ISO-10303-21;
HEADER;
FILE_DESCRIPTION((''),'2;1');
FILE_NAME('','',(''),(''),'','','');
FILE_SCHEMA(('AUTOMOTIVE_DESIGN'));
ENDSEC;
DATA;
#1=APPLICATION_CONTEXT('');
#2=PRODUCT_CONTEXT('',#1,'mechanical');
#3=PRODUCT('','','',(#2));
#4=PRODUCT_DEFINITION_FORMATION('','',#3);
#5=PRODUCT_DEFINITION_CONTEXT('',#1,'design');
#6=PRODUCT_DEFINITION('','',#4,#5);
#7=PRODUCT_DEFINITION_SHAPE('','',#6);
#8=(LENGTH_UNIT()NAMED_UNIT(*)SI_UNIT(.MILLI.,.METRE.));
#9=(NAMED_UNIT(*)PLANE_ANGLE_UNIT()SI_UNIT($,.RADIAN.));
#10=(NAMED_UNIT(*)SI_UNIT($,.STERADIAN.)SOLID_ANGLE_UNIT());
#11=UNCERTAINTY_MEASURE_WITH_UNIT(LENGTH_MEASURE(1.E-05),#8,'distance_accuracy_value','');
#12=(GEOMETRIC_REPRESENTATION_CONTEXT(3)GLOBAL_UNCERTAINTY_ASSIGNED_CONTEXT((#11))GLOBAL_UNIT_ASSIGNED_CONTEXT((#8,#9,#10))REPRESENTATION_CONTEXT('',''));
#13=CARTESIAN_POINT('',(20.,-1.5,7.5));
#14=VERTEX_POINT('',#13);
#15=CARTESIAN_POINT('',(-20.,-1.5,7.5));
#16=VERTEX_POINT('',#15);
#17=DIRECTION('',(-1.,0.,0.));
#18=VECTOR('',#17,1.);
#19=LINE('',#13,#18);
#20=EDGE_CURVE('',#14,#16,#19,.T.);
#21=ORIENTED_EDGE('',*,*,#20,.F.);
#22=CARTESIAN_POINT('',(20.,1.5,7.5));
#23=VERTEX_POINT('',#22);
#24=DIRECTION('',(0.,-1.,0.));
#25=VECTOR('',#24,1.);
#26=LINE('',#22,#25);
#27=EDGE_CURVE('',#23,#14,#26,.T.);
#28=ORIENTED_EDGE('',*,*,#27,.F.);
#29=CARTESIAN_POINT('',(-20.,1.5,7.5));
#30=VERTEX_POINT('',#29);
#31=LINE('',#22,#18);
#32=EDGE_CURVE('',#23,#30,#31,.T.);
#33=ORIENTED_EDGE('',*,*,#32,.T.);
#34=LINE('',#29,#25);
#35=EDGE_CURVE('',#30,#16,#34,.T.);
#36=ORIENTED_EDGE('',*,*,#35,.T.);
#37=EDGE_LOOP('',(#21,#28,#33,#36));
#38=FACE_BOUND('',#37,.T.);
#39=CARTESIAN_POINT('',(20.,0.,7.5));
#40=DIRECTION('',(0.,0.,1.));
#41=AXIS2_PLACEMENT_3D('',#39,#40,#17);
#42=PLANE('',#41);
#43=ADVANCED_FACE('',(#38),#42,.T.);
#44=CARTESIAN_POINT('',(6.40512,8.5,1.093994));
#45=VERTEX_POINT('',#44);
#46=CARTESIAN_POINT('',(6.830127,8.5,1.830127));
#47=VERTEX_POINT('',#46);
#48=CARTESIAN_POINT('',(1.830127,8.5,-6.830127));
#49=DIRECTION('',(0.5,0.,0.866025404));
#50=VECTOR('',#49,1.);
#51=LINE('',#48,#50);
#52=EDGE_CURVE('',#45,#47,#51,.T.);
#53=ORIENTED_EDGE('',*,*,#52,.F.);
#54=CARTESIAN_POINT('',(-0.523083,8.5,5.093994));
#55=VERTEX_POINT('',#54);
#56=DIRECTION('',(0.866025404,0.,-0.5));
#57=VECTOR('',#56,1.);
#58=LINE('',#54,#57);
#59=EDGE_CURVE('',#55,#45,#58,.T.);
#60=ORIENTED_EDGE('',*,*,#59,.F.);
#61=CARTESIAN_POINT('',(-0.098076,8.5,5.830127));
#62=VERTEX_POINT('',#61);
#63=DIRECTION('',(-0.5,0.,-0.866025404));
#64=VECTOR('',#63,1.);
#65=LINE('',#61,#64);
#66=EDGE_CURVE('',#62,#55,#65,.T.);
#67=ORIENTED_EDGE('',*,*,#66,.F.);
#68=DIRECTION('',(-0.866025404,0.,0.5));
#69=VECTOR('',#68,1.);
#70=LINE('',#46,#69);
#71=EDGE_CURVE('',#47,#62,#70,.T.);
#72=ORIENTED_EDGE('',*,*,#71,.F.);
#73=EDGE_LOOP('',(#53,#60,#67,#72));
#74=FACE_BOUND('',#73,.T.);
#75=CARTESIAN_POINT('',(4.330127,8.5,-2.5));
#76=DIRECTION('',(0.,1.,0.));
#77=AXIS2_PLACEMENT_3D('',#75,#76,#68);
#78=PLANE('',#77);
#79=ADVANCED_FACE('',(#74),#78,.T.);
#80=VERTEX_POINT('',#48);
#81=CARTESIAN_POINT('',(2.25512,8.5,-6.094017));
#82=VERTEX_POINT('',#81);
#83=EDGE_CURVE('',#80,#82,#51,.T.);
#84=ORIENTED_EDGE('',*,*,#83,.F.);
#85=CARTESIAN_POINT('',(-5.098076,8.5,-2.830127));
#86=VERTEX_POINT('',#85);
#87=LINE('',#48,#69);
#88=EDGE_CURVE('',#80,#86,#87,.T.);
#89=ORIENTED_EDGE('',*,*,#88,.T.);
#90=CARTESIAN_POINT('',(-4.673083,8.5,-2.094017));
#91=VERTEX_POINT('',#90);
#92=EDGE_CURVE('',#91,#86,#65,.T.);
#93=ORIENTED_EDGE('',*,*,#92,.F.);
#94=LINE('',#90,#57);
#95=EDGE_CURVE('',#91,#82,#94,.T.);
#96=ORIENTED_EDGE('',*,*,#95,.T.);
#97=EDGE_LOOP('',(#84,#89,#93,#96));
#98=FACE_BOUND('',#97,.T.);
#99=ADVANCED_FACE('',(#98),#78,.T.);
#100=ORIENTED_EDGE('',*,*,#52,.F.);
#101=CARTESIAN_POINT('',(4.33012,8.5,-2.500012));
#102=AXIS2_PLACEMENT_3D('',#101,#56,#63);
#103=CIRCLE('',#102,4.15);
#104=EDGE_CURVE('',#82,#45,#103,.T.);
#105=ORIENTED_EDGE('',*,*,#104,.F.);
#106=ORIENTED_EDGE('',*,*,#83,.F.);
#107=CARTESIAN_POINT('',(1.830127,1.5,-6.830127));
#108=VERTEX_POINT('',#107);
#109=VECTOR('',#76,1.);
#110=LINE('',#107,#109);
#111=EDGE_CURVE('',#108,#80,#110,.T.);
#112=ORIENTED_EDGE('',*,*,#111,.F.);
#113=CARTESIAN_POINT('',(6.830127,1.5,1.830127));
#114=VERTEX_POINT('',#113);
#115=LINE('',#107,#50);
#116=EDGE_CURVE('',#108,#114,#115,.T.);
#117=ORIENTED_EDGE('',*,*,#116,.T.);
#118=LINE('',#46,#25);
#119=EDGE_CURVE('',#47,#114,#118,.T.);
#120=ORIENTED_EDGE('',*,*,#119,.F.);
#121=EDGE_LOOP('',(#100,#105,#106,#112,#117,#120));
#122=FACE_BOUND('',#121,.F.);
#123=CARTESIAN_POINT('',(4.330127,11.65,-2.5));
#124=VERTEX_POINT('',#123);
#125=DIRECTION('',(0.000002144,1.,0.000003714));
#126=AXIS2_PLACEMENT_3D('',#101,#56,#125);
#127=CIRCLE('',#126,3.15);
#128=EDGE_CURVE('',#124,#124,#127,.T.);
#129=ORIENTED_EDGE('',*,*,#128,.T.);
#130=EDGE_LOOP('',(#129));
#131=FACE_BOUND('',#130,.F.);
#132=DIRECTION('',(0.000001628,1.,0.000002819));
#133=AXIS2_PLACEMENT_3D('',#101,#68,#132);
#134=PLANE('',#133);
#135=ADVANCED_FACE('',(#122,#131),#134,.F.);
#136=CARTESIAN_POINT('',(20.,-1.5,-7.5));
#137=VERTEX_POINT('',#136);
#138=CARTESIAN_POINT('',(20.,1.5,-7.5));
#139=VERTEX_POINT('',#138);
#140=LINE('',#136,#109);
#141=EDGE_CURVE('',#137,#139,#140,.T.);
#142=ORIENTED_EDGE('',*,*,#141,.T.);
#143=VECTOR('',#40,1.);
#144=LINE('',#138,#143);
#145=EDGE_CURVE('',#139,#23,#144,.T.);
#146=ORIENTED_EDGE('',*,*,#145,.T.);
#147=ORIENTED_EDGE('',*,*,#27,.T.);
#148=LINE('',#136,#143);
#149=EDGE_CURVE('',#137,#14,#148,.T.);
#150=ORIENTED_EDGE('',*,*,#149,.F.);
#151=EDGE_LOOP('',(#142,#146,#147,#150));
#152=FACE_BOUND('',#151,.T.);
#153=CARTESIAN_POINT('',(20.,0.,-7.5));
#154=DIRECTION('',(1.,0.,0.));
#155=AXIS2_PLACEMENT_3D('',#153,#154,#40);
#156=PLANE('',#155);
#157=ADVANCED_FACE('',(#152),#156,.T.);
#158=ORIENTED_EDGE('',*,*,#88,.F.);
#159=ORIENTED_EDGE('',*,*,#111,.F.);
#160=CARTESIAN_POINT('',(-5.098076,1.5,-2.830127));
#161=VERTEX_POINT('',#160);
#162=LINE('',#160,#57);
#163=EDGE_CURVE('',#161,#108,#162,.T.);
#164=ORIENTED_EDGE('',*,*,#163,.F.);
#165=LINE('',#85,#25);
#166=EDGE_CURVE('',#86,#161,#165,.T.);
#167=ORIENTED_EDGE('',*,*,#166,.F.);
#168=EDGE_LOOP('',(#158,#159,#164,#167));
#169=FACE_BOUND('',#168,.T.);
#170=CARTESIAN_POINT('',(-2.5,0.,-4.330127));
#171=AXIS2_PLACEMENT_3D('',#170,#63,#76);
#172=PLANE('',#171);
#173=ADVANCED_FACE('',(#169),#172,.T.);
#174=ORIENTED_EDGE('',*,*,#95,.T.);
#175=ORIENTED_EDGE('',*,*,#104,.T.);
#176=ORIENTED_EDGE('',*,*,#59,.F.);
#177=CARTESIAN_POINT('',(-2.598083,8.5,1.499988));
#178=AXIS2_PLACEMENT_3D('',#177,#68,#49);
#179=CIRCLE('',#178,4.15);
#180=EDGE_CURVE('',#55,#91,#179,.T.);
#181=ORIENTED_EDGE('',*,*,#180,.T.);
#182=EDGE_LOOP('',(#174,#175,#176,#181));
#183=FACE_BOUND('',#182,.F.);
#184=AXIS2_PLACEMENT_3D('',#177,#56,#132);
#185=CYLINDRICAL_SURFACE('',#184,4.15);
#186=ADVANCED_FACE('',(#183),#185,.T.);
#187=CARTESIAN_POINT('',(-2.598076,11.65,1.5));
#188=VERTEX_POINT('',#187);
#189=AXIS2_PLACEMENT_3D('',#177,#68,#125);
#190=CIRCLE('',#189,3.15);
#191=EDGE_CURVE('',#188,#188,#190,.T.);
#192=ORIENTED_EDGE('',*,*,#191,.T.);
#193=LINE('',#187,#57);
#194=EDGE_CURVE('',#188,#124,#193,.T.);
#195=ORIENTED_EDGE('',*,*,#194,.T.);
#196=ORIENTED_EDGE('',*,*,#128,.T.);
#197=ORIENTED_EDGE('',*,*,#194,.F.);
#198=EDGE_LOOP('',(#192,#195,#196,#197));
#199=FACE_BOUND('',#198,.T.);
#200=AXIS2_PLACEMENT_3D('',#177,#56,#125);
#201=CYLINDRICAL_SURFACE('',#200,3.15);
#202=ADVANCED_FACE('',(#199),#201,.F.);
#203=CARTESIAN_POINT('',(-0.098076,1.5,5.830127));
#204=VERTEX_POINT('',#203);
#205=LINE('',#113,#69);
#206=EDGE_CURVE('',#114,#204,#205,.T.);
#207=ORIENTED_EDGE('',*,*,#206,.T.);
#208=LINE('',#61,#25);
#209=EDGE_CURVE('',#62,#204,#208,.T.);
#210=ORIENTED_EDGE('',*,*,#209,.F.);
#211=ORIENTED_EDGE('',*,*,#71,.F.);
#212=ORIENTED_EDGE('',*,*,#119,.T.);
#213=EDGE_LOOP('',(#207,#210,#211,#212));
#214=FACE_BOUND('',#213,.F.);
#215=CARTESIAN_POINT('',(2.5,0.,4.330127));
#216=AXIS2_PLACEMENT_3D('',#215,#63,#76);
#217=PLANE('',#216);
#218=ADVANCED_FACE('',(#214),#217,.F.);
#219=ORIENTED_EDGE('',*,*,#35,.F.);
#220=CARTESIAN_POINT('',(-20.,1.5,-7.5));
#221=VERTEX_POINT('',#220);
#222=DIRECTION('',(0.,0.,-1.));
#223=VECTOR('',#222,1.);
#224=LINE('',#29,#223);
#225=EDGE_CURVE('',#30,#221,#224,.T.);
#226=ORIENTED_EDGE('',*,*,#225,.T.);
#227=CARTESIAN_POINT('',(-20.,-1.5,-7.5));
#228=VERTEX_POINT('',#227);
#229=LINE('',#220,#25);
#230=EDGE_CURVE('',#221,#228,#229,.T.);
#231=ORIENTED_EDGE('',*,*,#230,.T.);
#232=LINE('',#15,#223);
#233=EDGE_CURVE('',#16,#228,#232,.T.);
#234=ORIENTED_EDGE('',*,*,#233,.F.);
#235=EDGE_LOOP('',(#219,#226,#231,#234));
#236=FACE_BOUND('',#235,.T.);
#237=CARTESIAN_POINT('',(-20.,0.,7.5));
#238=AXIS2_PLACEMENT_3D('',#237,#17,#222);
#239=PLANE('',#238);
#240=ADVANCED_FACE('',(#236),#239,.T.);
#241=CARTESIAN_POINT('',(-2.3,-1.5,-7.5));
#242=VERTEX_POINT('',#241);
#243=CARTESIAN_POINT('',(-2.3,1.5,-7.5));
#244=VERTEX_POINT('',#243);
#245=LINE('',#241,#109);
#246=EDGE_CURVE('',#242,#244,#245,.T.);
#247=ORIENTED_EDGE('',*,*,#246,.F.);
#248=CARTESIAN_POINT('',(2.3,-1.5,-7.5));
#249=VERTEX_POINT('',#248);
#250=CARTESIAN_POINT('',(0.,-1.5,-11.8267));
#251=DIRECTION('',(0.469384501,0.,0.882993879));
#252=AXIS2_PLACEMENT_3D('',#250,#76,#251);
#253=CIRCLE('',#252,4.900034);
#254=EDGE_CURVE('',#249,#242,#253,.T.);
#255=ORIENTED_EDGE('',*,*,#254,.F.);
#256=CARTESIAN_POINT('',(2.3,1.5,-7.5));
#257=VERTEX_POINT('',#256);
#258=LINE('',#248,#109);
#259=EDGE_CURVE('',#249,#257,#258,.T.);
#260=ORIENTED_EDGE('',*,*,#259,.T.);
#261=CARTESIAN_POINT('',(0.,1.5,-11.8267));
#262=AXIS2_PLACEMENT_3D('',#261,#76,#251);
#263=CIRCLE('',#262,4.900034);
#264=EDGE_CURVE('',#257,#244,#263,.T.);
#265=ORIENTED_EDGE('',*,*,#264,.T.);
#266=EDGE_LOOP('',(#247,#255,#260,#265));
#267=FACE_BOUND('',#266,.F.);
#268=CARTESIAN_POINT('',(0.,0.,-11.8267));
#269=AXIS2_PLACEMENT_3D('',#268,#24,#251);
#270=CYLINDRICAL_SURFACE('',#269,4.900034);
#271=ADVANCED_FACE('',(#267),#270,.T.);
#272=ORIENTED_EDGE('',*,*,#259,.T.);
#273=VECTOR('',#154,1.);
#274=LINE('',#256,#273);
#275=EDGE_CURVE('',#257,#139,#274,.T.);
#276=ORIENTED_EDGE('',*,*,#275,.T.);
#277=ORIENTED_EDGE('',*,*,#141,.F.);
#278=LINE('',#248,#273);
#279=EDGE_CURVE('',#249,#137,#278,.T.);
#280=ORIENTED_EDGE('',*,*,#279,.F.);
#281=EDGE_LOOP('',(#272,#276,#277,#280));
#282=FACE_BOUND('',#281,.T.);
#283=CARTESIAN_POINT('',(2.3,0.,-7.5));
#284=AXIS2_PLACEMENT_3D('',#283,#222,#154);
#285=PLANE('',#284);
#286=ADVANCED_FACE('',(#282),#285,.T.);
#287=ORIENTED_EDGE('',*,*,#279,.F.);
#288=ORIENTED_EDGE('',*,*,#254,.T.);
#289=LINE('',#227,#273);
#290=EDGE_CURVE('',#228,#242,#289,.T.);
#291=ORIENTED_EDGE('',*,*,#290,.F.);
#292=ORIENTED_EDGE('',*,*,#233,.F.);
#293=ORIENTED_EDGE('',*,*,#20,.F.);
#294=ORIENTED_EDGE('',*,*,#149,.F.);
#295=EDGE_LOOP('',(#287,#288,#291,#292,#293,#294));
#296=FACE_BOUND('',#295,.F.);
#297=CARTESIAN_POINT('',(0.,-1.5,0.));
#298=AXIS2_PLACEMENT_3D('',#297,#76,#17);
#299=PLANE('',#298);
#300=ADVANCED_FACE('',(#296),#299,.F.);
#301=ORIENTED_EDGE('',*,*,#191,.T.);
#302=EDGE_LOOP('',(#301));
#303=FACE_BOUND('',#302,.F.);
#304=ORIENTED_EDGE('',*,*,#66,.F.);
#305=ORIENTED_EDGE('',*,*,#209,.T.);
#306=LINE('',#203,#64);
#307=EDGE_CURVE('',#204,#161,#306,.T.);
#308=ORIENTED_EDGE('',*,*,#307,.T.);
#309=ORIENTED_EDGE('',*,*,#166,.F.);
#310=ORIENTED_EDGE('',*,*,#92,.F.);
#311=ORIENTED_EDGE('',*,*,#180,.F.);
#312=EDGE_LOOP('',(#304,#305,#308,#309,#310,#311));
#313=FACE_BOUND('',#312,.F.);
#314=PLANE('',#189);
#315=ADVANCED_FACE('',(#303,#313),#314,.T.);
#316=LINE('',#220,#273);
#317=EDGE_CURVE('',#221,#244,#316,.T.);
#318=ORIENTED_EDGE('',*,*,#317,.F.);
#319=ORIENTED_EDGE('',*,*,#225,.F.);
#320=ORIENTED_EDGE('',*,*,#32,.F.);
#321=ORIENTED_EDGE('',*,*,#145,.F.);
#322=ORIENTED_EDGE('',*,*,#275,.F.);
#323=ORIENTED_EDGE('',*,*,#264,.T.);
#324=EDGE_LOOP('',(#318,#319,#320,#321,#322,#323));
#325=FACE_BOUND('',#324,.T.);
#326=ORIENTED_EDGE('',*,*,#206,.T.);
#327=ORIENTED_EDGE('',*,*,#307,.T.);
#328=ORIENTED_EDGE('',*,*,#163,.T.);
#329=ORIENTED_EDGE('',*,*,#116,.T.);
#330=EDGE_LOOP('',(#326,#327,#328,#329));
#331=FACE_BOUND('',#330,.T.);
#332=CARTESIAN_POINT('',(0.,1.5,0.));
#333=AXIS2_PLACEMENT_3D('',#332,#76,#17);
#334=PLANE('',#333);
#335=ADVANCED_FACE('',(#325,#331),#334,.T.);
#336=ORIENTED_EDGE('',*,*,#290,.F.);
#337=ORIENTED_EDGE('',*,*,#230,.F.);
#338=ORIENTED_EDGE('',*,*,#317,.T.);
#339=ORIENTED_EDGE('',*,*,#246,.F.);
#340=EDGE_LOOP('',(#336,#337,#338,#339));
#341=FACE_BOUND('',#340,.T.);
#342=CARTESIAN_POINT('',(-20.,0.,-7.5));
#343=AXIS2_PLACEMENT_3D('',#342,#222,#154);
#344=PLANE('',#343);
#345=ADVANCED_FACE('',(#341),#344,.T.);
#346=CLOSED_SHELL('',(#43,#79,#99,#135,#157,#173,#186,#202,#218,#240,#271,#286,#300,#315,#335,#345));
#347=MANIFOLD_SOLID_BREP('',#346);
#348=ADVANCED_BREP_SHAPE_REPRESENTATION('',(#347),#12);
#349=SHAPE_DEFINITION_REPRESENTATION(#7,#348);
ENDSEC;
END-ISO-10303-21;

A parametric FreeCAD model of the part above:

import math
import FreeCAD as App
import Part
import Sketcher

V = App.Vector


def add_polygon(sketch, points):
    """Adds a closed chain of lines whose ends are joined by coincident constraints."""
    first, n = sketch.GeometryCount, len(points)
    for a, b in zip(points, points[1:] + points[:1]):
        sketch.addGeometry(Part.LineSegment(App.Vector(*a, 0), App.Vector(*b, 0)), False)
    for i in range(n):
        sketch.addConstraint(Sketcher.Constraint("Coincident", first + i, 2, first + (i + 1) % n, 1))

doc = App.newDocument("Part")
body = doc.addObject("PartDesign::Body", "Body")

# Sketch on XZ plane
sketch1 = body.newObject("Sketcher::SketchObject", "Sketch")
sketch1.AttachmentSupport = (doc.getObject("XZ_Plane"), [""])
sketch1.MapMode = "FlatFace"
sketch1.addGeometry([
    Part.LineSegment(V(20, 7.5, 0), V(20, -7.5, 0)),  # 0
    Part.LineSegment(V(20, -7.5, 0), V(2.3, -7.5, 0)),  # 1
    Part.ArcOfCircle(Part.Circle(V(0, -11.8, 0), V(0, 0, 1), 4.9), math.radians(118), math.radians(422)),  # 2
    Part.LineSegment(V(-2.3, -7.5, 0), V(-20, -7.5, 0)),  # 3
    Part.LineSegment(V(-20, -7.5, 0), V(-20, 7.5, 0)),  # 4
    Part.LineSegment(V(-20, 7.5, 0), V(20, 7.5, 0)),  # 5
], False)
sketch1.addConstraint([
    Sketcher.Constraint("Coincident", 0, 2, 1, 1),
    Sketcher.Constraint("Coincident", 1, 2, 2, 2),
    Sketcher.Constraint("Coincident", 2, 1, 3, 1),
    Sketcher.Constraint("Coincident", 3, 2, 4, 1),
    Sketcher.Constraint("Coincident", 4, 2, 5, 1),
    Sketcher.Constraint("Coincident", 5, 2, 0, 1),
    Sketcher.Constraint("Vertical", 0),
    Sketcher.Constraint("Horizontal", 1),
    Sketcher.Constraint("Horizontal", 3),
    Sketcher.Constraint("Vertical", 4),
    Sketcher.Constraint("Horizontal", 5),
    Sketcher.Constraint("Symmetric", 0, 2, 4, 2, -1, 1),
    Sketcher.Constraint("Symmetric", 1, 2, 2, 1, -2),
    Sketcher.Constraint("Radius", 2, 4.9),
    Sketcher.Constraint("DistanceX", 5, 1, 5, 2, 40.0),
    Sketcher.Constraint("DistanceY", 0, 2, 0, 1, 15.0),
    Sketcher.Constraint("DistanceX", 2, 1, 1, 2, 4.6),
])
pad1 = body.newObject("PartDesign::Pad", "Pad")
pad1.Profile = sketch1
pad1.Length = 3
pad1.Midplane = True

# Sketch on an angled plane
sketch2 = body.newObject("Sketcher::SketchObject", "Sketch001")
sketch2.Placement = App.Placement(V(0, 0, 0), App.Rotation(V(0, 1, 0), V(0.866025404, 0, -0.5), V(-0.5, 0, -0.866025404), "ZXY"))
add_polygon(sketch2, [(2, 5), (2, -3), (8, -3), (8, 5)])  # lines 0-3
sketch2.addConstraint([
    Sketcher.Constraint("Vertical", 0),
    Sketcher.Constraint("Horizontal", 1),
    Sketcher.Constraint("Vertical", 2),
    Sketcher.Constraint("Horizontal", 3),
    Sketcher.Constraint("DistanceX", 1, 1, 1, 2, 7.0),
    Sketcher.Constraint("DistanceY", 0, 2, 0, 1, 8.0),
    Sketcher.Constraint("DistanceY", 0, 2, -1, 1, 3.0),
    Sketcher.Constraint("DistanceX", -1, 1, 0, 2, 1.5),
])
pad2 = body.newObject("PartDesign::Pad", "Pad001")
pad2.Profile = sketch2
pad2.Length = 10
pad2.Midplane = True

# Sketch on an angled plane
sketch3 = body.newObject("Sketcher::SketchObject", "Sketch002")
sketch3.Placement = App.Placement(V(0, 0, 0), App.Rotation(V(0, 1, 0), V(0.866025404, 0, -0.5), V(-0.5, 0, -0.866025404), "ZXY"))
add_polygon(sketch3, [(8.5, 5), (8.5, -3), (11.7, -3), (11.7, 5)])  # lines 0-3
sketch3.addGeometry(Part.LineSegment(V(8.5, 5, 0), V(8.5, -3, 0)), True)  # axis
sketch3.addConstraint([
    Sketcher.Constraint("Vertical", 0),
    Sketcher.Constraint("Horizontal", 1),
    Sketcher.Constraint("Vertical", 2),
    Sketcher.Constraint("Horizontal", 3),
    Sketcher.Constraint("Vertical", 4),
    Sketcher.Constraint("Coincident", 4, 1, 3, 2),
    Sketcher.Constraint("Horizontal", 1, 2, 4, 2),
    Sketcher.Constraint("DistanceY", 0, 2, 0, 1, 8.0),
    Sketcher.Constraint("DistanceY", 0, 2, -1, 1, 3.0),
    Sketcher.Constraint("DistanceX", 1, 1, 1, 2, 3.15),
    Sketcher.Constraint("DistanceX", -1, 1, 0, 2, 8.5),
])
groove = body.newObject("PartDesign::Groove", "Groove")
groove.Profile = sketch3
groove.ReferenceAxis = (sketch3, ["Axis0"])
groove.Angle = 360

# Sketch on an angled plane
sketch4 = body.newObject("Sketcher::SketchObject", "Sketch003")
sketch4.Placement = App.Placement(V(0, 0, 0), App.Rotation(V(0, 1, 0), V(0.866025404, 0, -0.5), V(-0.5, 0, -0.866025404), "ZXY"))
add_polygon(sketch4, [(11.7, 5), (11.7, -3), (12.7, -3), (12.7, 5)])  # lines 0-3
sketch4.addGeometry(Part.LineSegment(V(8.5, 5, 0), V(8.5, -3, 0)), True)  # axis
sketch4.addConstraint([
    Sketcher.Constraint("Vertical", 0),
    Sketcher.Constraint("Horizontal", 1),
    Sketcher.Constraint("Vertical", 2),
    Sketcher.Constraint("Horizontal", 3),
    Sketcher.Constraint("Vertical", 4),
    Sketcher.Constraint("Horizontal", 3, 2, 4, 1),
    Sketcher.Constraint("Horizontal", 1, 2, 4, 2),
    Sketcher.Constraint("DistanceX", 1, 1, 1, 2, 1.0),
    Sketcher.Constraint("DistanceY", 0, 2, 0, 1, 8.0),
    Sketcher.Constraint("DistanceY", 0, 2, -1, 1, 3.0),
    Sketcher.Constraint("DistanceX", -1, 1, 4, 1, 8.5),
    Sketcher.Constraint("DistanceX", -1, 1, 0, 2, 11.65),
])
revolution = body.newObject("PartDesign::Revolution", "Revolution")
revolution.Profile = sketch4
revolution.ReferenceAxis = (sketch4, ["Axis0"])
revolution.Angle = 360

doc.recompute()
